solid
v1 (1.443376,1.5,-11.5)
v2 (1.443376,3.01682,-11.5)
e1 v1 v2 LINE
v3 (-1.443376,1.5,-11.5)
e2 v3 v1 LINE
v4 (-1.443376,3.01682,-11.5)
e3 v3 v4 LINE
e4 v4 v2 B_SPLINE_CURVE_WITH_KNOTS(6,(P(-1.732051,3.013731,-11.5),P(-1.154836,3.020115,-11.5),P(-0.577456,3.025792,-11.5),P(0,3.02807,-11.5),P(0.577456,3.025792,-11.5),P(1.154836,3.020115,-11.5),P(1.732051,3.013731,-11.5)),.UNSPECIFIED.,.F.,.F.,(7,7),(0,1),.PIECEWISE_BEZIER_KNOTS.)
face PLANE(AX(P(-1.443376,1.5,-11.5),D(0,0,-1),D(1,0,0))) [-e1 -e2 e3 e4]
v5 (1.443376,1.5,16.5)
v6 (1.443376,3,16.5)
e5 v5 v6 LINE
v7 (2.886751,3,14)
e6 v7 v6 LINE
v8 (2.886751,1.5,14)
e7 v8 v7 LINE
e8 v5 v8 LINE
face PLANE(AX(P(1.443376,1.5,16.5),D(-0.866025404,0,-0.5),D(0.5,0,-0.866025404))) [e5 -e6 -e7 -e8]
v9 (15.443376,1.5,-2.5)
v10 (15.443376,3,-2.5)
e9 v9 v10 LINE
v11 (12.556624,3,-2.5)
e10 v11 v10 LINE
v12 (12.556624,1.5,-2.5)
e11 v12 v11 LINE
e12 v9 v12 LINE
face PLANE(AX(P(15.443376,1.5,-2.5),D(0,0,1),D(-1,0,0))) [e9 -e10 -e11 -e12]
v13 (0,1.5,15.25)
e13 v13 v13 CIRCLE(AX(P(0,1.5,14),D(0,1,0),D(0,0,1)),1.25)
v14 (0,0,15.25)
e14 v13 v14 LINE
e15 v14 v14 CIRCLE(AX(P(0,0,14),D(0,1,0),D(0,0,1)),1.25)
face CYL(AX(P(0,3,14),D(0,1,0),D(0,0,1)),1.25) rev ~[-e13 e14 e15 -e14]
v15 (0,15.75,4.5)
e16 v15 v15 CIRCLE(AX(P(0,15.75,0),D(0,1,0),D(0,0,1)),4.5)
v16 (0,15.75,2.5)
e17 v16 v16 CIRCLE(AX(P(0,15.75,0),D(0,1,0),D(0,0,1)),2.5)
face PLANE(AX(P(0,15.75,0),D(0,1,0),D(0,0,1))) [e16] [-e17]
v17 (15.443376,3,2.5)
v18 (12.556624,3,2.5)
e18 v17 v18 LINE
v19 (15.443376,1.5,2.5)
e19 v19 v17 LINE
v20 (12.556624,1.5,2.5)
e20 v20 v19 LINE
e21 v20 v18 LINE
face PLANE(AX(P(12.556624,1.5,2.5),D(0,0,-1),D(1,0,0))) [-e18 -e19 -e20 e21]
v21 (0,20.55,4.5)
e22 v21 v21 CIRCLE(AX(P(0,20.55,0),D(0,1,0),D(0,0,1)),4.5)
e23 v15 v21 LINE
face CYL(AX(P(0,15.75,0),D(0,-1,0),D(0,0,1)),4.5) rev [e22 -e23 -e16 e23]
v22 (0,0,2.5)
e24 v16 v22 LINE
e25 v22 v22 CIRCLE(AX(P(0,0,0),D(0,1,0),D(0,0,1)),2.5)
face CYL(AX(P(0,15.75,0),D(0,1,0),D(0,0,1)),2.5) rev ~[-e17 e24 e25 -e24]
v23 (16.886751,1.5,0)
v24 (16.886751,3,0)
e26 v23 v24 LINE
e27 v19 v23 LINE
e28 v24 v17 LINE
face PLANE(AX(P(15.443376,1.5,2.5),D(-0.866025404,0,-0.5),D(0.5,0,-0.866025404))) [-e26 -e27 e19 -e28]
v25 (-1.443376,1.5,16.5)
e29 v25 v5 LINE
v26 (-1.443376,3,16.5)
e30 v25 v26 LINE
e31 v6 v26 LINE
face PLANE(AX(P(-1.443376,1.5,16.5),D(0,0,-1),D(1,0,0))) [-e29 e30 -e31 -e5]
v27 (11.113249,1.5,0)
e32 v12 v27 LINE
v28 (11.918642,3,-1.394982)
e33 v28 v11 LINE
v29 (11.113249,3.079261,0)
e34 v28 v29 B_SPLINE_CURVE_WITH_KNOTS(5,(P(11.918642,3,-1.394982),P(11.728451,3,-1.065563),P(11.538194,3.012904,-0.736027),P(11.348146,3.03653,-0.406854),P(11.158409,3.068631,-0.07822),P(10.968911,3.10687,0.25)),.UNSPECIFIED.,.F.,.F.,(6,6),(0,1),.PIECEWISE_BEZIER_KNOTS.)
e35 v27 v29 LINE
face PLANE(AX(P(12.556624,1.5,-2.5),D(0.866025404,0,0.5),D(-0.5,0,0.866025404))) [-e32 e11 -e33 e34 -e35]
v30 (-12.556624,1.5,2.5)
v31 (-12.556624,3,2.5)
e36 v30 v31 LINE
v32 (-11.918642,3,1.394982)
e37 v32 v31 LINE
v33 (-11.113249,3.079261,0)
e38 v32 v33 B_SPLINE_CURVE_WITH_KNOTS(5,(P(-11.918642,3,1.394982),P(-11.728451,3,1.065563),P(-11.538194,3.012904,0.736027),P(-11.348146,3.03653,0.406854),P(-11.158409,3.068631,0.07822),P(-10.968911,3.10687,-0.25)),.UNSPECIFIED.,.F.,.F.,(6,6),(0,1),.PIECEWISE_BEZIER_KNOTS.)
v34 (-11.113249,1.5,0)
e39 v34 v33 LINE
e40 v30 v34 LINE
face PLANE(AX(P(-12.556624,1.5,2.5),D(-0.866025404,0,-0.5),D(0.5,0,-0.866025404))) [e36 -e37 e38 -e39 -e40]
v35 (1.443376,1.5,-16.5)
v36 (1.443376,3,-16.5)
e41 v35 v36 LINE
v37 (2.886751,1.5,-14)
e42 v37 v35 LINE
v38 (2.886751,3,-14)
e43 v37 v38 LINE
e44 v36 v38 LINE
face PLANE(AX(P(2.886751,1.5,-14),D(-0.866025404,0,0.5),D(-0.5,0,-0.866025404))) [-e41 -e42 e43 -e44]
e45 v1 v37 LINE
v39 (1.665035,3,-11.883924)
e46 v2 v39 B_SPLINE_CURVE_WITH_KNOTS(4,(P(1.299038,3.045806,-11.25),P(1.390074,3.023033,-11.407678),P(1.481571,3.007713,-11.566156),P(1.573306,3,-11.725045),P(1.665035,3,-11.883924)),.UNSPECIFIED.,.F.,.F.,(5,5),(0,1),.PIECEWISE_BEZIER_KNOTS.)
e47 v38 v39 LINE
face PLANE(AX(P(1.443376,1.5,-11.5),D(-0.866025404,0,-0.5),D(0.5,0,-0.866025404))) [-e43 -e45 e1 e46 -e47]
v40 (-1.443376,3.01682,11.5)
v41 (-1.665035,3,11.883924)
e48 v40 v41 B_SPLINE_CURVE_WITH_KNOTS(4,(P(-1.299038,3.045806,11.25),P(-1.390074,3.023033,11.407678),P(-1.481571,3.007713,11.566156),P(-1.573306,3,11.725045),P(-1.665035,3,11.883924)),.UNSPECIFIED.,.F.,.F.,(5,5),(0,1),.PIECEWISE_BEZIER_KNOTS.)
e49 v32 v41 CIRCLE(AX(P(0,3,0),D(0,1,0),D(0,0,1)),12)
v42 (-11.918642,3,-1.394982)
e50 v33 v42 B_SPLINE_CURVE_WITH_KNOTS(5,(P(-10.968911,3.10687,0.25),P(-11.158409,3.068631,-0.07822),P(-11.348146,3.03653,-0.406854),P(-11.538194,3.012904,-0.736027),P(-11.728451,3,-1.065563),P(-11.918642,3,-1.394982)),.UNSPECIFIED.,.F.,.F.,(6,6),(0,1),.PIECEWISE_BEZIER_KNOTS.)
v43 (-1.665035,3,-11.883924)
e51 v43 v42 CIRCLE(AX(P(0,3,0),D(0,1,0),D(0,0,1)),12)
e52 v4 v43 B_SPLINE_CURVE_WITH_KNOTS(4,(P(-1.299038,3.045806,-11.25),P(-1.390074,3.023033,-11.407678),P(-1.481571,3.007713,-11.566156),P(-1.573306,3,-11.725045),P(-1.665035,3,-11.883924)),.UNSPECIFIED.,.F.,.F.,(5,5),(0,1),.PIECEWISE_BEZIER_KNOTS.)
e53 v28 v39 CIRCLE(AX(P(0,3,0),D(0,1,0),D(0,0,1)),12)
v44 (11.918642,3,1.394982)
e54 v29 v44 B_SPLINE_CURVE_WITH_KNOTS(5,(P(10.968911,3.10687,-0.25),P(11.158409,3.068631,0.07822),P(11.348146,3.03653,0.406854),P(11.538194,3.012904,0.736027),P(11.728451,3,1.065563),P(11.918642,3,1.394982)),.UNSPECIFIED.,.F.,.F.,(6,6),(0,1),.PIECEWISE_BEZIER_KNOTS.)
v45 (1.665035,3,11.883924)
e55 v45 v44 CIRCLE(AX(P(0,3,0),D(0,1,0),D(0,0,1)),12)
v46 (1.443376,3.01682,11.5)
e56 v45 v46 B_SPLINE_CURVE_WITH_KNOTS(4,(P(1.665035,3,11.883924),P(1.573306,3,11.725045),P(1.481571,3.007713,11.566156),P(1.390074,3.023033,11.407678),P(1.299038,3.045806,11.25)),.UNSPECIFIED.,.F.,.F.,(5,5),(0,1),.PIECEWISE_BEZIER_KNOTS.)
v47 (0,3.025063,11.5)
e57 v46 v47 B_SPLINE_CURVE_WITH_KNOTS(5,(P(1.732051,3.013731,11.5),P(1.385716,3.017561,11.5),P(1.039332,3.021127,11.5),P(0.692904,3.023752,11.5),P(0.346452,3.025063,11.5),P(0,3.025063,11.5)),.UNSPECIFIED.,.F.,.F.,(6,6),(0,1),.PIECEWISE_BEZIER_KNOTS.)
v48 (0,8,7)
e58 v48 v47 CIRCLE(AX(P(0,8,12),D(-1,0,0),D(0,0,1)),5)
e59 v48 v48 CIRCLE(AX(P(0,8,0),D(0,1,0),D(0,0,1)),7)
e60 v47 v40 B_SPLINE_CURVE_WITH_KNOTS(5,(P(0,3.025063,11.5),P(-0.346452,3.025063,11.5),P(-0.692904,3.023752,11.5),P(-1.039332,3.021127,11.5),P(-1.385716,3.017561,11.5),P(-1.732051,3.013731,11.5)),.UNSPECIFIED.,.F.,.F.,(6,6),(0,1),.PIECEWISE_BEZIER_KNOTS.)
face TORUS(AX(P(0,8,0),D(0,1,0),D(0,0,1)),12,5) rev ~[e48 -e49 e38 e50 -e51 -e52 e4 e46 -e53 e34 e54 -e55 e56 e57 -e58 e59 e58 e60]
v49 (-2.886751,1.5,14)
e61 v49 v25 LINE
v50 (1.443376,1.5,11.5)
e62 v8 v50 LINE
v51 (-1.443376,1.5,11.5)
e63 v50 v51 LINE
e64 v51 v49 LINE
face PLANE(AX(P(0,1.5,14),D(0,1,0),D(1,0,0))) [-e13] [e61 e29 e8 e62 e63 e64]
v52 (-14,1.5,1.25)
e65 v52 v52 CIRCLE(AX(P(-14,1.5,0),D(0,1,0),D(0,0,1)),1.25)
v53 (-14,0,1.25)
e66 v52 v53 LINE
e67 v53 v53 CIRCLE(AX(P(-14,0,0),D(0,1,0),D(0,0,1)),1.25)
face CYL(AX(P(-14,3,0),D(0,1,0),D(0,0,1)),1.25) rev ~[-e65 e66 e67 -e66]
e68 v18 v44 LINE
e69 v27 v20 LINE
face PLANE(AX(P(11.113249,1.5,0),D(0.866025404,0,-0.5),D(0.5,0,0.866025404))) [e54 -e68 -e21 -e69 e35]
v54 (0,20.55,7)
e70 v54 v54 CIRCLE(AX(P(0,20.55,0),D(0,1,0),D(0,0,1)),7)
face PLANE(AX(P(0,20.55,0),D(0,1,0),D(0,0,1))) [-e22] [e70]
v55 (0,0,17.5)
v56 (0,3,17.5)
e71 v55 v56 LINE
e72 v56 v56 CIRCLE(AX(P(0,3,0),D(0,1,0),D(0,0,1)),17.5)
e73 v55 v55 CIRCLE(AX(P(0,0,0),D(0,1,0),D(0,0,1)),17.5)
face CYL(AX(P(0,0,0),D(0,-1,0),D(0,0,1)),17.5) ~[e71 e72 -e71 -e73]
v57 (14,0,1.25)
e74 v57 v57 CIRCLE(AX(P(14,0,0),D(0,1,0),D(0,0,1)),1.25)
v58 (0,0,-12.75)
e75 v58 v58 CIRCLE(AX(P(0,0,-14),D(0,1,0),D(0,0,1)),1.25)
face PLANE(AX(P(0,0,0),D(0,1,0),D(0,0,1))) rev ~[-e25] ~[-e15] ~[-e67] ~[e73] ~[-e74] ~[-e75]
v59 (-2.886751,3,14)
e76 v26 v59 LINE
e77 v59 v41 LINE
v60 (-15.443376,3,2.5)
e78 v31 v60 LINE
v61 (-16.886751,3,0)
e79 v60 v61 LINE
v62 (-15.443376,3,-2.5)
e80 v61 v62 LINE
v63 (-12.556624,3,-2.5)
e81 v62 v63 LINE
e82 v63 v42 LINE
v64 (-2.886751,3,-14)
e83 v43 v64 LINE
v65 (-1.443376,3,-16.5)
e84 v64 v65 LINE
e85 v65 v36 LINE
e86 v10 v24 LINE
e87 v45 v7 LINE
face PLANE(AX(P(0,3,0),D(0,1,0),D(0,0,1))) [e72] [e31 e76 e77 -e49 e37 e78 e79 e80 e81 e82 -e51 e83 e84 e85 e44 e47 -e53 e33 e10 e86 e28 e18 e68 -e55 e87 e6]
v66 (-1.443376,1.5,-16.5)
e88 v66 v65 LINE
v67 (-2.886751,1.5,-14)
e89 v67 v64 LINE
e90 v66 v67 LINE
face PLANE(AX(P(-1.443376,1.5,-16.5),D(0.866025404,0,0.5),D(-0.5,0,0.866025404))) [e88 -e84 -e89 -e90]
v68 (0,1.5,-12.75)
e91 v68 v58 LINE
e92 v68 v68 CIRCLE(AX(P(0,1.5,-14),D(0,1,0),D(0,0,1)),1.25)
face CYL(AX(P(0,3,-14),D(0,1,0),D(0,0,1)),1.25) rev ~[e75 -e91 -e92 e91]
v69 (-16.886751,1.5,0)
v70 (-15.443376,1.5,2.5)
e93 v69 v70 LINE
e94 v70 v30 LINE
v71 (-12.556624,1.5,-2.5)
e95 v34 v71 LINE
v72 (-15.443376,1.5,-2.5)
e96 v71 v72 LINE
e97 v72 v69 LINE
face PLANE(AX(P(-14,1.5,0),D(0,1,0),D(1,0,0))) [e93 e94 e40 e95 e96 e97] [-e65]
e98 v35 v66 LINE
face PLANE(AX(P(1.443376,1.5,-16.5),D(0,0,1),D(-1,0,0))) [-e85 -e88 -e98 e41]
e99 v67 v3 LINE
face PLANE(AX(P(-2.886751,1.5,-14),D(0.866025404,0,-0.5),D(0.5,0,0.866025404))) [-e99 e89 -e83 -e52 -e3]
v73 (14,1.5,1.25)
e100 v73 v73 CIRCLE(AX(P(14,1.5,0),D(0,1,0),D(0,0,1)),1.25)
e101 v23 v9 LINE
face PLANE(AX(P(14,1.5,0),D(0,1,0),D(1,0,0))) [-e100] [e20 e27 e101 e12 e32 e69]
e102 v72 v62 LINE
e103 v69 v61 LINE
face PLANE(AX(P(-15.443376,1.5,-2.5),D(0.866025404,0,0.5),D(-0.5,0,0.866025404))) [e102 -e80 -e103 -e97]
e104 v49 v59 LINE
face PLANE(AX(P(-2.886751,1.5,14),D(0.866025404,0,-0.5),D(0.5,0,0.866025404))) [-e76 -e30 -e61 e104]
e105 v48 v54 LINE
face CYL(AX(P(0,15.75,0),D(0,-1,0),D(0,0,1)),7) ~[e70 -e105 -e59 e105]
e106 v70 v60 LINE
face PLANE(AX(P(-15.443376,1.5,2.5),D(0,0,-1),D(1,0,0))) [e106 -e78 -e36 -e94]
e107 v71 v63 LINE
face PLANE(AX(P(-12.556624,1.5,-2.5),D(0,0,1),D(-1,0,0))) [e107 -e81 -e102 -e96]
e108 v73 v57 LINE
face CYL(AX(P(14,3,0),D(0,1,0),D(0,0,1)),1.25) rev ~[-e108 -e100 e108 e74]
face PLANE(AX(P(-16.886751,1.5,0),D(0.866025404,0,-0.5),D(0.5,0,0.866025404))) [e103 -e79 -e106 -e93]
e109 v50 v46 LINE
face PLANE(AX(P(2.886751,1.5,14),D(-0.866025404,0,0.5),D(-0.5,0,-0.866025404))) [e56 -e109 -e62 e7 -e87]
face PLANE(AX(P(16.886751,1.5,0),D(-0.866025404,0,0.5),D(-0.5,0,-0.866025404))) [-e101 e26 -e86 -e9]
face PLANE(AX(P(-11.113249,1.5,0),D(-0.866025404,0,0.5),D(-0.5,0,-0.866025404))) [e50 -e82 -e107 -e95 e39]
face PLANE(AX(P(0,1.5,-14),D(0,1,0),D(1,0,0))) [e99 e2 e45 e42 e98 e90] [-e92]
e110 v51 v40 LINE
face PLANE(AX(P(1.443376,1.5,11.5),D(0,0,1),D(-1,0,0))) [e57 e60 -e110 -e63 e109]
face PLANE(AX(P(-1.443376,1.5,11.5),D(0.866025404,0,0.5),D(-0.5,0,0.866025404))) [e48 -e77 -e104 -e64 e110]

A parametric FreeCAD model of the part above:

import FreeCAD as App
import Part
import Sketcher
from FreeCAD import Vector
Q = App.Units.Quantity


def edges_at(feature, points):
    """Names of the edges that pass closest to the given points."""
    edges = feature.Shape.Edges
    near = lambda p: min(range(len(edges)), key=lambda i: edges[i].distToShape(Part.Vertex(*p))[0])
    return sorted({f"Edge{near(p) + 1}" for p in points})

doc = App.newDocument("Part")
body = doc.addObject("PartDesign::Body", "Body")

sketch1 = body.newObject("Sketcher::SketchObject", "Sketch")
sketch1.AttachmentSupport = (doc.getObject("XZ_Plane"), [""])
sketch1.MapMode = "FlatFace"
sketch1.addGeometry(Part.Circle(Vector(0, 0, 0), Vector(0, 0, 1), 18), False)
sketch1.addConstraint(Sketcher.Constraint("Coincident", 0, 3, -1, 1))
sketch1.addConstraint(Sketcher.Constraint("Diameter", 0, 35.0))
pad1 = body.newObject("PartDesign::Pad", "Pad")
pad1.Profile = sketch1
pad1.Length = 3
pad1.Reversed = True

sketch2 = body.newObject("Sketcher::SketchObject", "Sketch001")
sketch2.AttachmentSupport = (doc.getObject("XZ_Plane"), [""])
sketch2.MapMode = "FlatFace"
sketch2.AttachmentOffset = App.Placement(Vector(0, 0, -3), App.Rotation())
sketch2.addGeometry(Part.Circle(Vector(0, 0, 0), Vector(0, 0, 1), 7), False)
sketch2.addConstraint(Sketcher.Constraint("Coincident", 0, 3, -1, 1))
sketch2.addConstraint(Sketcher.Constraint("Diameter", 0, 14.0))
pad2 = body.newObject("PartDesign::Pad", "Pad001")
pad2.Profile = sketch2
pad2.Length = 12.75
pad2.Reversed = True

sketch3 = body.newObject("Sketcher::SketchObject", "Sketch002")
sketch3.AttachmentSupport = (doc.getObject("XZ_Plane"), [""])
sketch3.MapMode = "FlatFace"
sketch3.AttachmentOffset = App.Placement(Vector(0, 0, -15.75), App.Rotation())
sketch3.addGeometry(Part.Circle(Vector(0, 0, 0), Vector(0, 0, 1), 7), False)
sketch3.addGeometry(Part.Circle(Vector(0, 0, 0), Vector(0, 0, 1), 4.5), False)
sketch3.addConstraint(Sketcher.Constraint("Coincident", 0, 3, -1, 1))
sketch3.addConstraint(Sketcher.Constraint("Coincident", 1, 3, -1, 1))
sketch3.addConstraint(Sketcher.Constraint("Diameter", 0, 14.0))
sketch3.addConstraint(Sketcher.Constraint("Diameter", 1, 9.0))
pad3 = body.newObject("PartDesign::Pad", "Pad002")
pad3.Profile = sketch3
pad3.Length = 4.8
pad3.Reversed = True

sketch4 = body.newObject("Sketcher::SketchObject", "Sketch003")
sketch4.AttachmentSupport = (doc.getObject("XZ_Plane"), [""])
sketch4.MapMode = "FlatFace"
sketch4.AttachmentOffset = App.Placement(Vector(0, 0, -15.75), App.Rotation())
sketch4.addGeometry(Part.Circle(Vector(0, 0, 0), Vector(0, 0, 1), 2.5), False)
sketch4.addConstraint(Sketcher.Constraint("Coincident", 0, 3, -1, 1))
sketch4.addConstraint(Sketcher.Constraint("Diameter", 0, 5.0))
pocket1 = body.newObject("PartDesign::Pocket", "Pocket")
pocket1.Profile = sketch4
pocket1.Length = 19.8
pocket1.Reversed = True
doc.recompute()

fillet = body.newObject("PartDesign::Fillet", "Fillet")
fillet.Base = (pocket1, edges_at(pocket1, [(0, 3, -7)]))
fillet.Radius = 5

sketch5 = body.newObject("Sketcher::SketchObject", "Sketch004")
sketch5.AttachmentSupport = (doc.getObject("XZ_Plane"), [""])
sketch5.MapMode = "FlatFace"
sketch5.AttachmentOffset = App.Placement(Vector(0, 0, -3), App.Rotation())
sketch5.addGeometry(Part.Circle(Vector(0, -14, 0), Vector(0, 0, 1), 1.2), False)
sketch5.addGeometry(Part.Circle(Vector(14, 0, 0), Vector(0, 0, 1), 1.2), False)
sketch5.addGeometry(Part.Circle(Vector(0, 14, 0), Vector(0, 0, 1), 1.2), False)
sketch5.addGeometry(Part.Circle(Vector(-14, 0, 0), Vector(0, 0, 1), 1.2), False)
sketch5.addConstraint(Sketcher.Constraint("Equal", 0, 1))
sketch5.addConstraint(Sketcher.Constraint("Equal", 1, 2))
sketch5.addConstraint(Sketcher.Constraint("Equal", 2, 3))
sketch5.addConstraint(Sketcher.Constraint("Symmetric", 0, 3, 2, 3, -1, 1))
sketch5.addConstraint(Sketcher.Constraint("Symmetric", 1, 3, 3, 3, -1, 1))
sketch5.addConstraint(Sketcher.Constraint("PointOnObject", 0, 3, -2))
sketch5.addConstraint(Sketcher.Constraint("PointOnObject", 1, 3, -1))
sketch5.addConstraint(Sketcher.Constraint("Diameter", 0, 2.5))
sketch5.addConstraint(Sketcher.Constraint("DistanceY", 0, 3, -1, 1, 14.0))
sketch5.addConstraint(Sketcher.Constraint("DistanceX", -1, 1, 1, 3, 14.0))
pocket2 = body.newObject("PartDesign::Pocket", "Pocket001")
pocket2.Profile = sketch5
pocket2.Length = 3
pocket2.Reversed = True

sketch6 = body.newObject("Sketcher::SketchObject", "Sketch005")
sketch6.AttachmentSupport = (doc.getObject("XZ_Plane"), [""])
sketch6.MapMode = "FlatFace"
sketch6.AttachmentOffset = App.Placement(Vector(0, 0, -3), App.Rotation())
sketch6.addGeometry(Part.LineSegment(Vector(2.9, -14, 0), Vector(1.4, -16.5, 0)), False)
sketch6.addGeometry(Part.LineSegment(Vector(1.4, -16.5, 0), Vector(-1.4, -16.5, 0)), False)
sketch6.addGeometry(Part.LineSegment(Vector(-1.4, -16.5, 0), Vector(-2.9, -14, 0)), False)
sketch6.addGeometry(Part.LineSegment(Vector(-2.9, -14, 0), Vector(-1.4, -11.5, 0)), False)
sketch6.addGeometry(Part.LineSegment(Vector(-1.4, -11.5, 0), Vector(1.4, -11.5, 0)), False)
sketch6.addGeometry(Part.LineSegment(Vector(1.4, -11.5, 0), Vector(2.9, -14, 0)), False)
sketch6.addGeometry(Part.LineSegment(Vector(16.9, 0, 0), Vector(15.4, -2.5, 0)), False)
sketch6.addGeometry(Part.LineSegment(Vector(15.4, -2.5, 0), Vector(12.6, -2.5, 0)), False)
sketch6.addGeometry(Part.LineSegment(Vector(12.6, -2.5, 0), Vector(11.1, 0, 0)), False)
sketch6.addGeometry(Part.LineSegment(Vector(11.1, 0, 0), Vector(12.6, 2.5, 0)), False)
sketch6.addGeometry(Part.LineSegment(Vector(12.6, 2.5, 0), Vector(15.4, 2.5, 0)), False)
sketch6.addGeometry(Part.LineSegment(Vector(15.4, 2.5, 0), Vector(16.9, 0, 0)), False)
sketch6.addGeometry(Part.LineSegment(Vector(2.9, 14, 0), Vector(1.4, 11.5, 0)), False)
sketch6.addGeometry(Part.LineSegment(Vector(1.4, 11.5, 0), Vector(-1.4, 11.5, 0)), False)
sketch6.addGeometry(Part.LineSegment(Vector(-1.4, 11.5, 0), Vector(-2.9, 14, 0)), False)
sketch6.addGeometry(Part.LineSegment(Vector(-2.9, 14, 0), Vector(-1.4, 16.5, 0)), False)
sketch6.addGeometry(Part.LineSegment(Vector(-1.4, 16.5, 0), Vector(1.4, 16.5, 0)), False)
sketch6.addGeometry(Part.LineSegment(Vector(1.4, 16.5, 0), Vector(2.9, 14, 0)), False)
sketch6.addGeometry(Part.LineSegment(Vector(-11.1, 0, 0), Vector(-12.6, -2.5, 0)), False)
sketch6.addGeometry(Part.LineSegment(Vector(-12.6, -2.5, 0), Vector(-15.4, -2.5, 0)), False)
sketch6.addGeometry(Part.LineSegment(Vector(-15.4, -2.5, 0), Vector(-16.9, 0, 0)), False)
sketch6.addGeometry(Part.LineSegment(Vector(-16.9, 0, 0), Vector(-15.4, 2.5, 0)), False)
sketch6.addGeometry(Part.LineSegment(Vector(-15.4, 2.5, 0), Vector(-12.6, 2.5, 0)), False)
sketch6.addGeometry(Part.LineSegment(Vector(-12.6, 2.5, 0), Vector(-11.1, 0, 0)), False)
sketch6.addConstraint(Sketcher.Constraint("Coincident", 0, 2, 1, 1))
sketch6.addConstraint(Sketcher.Constraint("Coincident", 1, 2, 2, 1))
sketch6.addConstraint(Sketcher.Constraint("Coincident", 2, 2, 3, 1))
sketch6.addConstraint(Sketcher.Constraint("Coincident", 3, 2, 4, 1))
sketch6.addConstraint(Sketcher.Constraint("Coincident", 4, 2, 5, 1))
sketch6.addConstraint(Sketcher.Constraint("Coincident", 5, 2, 0, 1))
sketch6.addConstraint(Sketcher.Constraint("Coincident", 6, 2, 7, 1))
sketch6.addConstraint(Sketcher.Constraint("Coincident", 7, 2, 8, 1))
sketch6.addConstraint(Sketcher.Constraint("Coincident", 8, 2, 9, 1))
sketch6.addConstraint(Sketcher.Constraint("Coincident", 9, 2, 10, 1))
sketch6.addConstraint(Sketcher.Constraint("Coincident", 10, 2, 11, 1))
sketch6.addConstraint(Sketcher.Constraint("Coincident", 11, 2, 6, 1))
sketch6.addConstraint(Sketcher.Constraint("Coincident", 12, 2, 13, 1))
sketch6.addConstraint(Sketcher.Constraint("Coincident", 13, 2, 14, 1))
sketch6.addConstraint(Sketcher.Constraint("Coincident", 14, 2, 15, 1))
sketch6.addConstraint(Sketcher.Constraint("Coincident", 15, 2, 16, 1))
sketch6.addConstraint(Sketcher.Constraint("Coincident", 16, 2, 17, 1))
sketch6.addConstraint(Sketcher.Constraint("Coincident", 17, 2, 12, 1))
sketch6.addConstraint(Sketcher.Constraint("Coincident", 18, 2, 19, 1))
sketch6.addConstraint(Sketcher.Constraint("Coincident", 19, 2, 20, 1))
sketch6.addConstraint(Sketcher.Constraint("Coincident", 20, 2, 21, 1))
sketch6.addConstraint(Sketcher.Constraint("Coincident", 21, 2, 22, 1))
sketch6.addConstraint(Sketcher.Constraint("Coincident", 22, 2, 23, 1))
sketch6.addConstraint(Sketcher.Constraint("Coincident", 23, 2, 18, 1))
sketch6.addConstraint(Sketcher.Constraint("Horizontal", 1))
sketch6.addConstraint(Sketcher.Constraint("Horizontal", 4))
sketch6.addConstraint(Sketcher.Constraint("Horizontal", 7))
sketch6.addConstraint(Sketcher.Constraint("Horizontal", 10))
sketch6.addConstraint(Sketcher.Constraint("Horizontal", 13))
sketch6.addConstraint(Sketcher.Constraint("Horizontal", 16))
sketch6.addConstraint(Sketcher.Constraint("Horizontal", 19))
sketch6.addConstraint(Sketcher.Constraint("Horizontal", 22))
sketch6.addConstraint(Sketcher.Constraint("Symmetric", 3, 2, 12, 2, -1, 1))
sketch6.addConstraint(Sketcher.Constraint("Symmetric", 5, 2, 14, 2, -1, 1))
sketch6.addConstraint(Sketcher.Constraint("Symmetric", 0, 2, 15, 2, -1, 1))
sketch6.addConstraint(Sketcher.Constraint("Symmetric", 2, 2, 17, 2, -1, 1))
sketch6.addConstraint(Sketcher.Constraint("Symmetric", 9, 2, 18, 2, -1, 1))
sketch6.addConstraint(Sketcher.Constraint("Symmetric", 11, 2, 20, 2, -1, 1))
sketch6.addConstraint(Sketcher.Constraint("Symmetric", 6, 2, 21, 2, -1, 1))
sketch6.addConstraint(Sketcher.Constraint("Symmetric", 8, 2, 23, 2, -1, 1))
sketch6.addConstraint(Sketcher.Constraint("Symmetric", 2, 2, 5, 2, -2))
sketch6.addConstraint(Sketcher.Constraint("Symmetric", 7, 2, 18, 2, -2))
sketch6.addConstraint(Sketcher.Constraint("PointOnObject", 8, 2, -1))
sketch6.addConstraint(Sketcher.Constraint("PointOnObject", 11, 2, -1))
sketch6.addConstraint(Sketcher.Constraint("Parallel", 0, 3))
sketch6.addConstraint(Sketcher.Constraint("Parallel", 2, 5))
sketch6.addConstraint(Sketcher.Constraint("Parallel", 3, 6))
sketch6.addConstraint(Sketcher.Constraint("Parallel", 5, 8))
sketch6.addConstraint(Sketcher.Constraint("Parallel", 6, 9))
sketch6.addConstraint(Sketcher.Constraint("Parallel", 8, 11))
sketch6.addConstraint(Sketcher.Constraint("Parallel", 11, 14))
sketch6.addConstraint(Sketcher.Constraint("Parallel", 14, 17))
sketch6.addConstraint(Sketcher.Constraint("Parallel", 17, 20))
sketch6.addConstraint(Sketcher.Constraint("Parallel", 20, 23))
sketch6.addConstraint(Sketcher.Constraint("Vertical", 1, 2, 3, 2))
sketch6.addConstraint(Sketcher.Constraint("Equal", 4, 7))
sketch6.addConstraint(Sketcher.Constraint("Equal", 5, 6))
sketch6.addConstraint(Sketcher.Constraint("Angle", 0, Q("-120 deg")))
sketch6.addConstraint(Sketcher.Constraint("DistanceY", 2, 2, -1, 1, 14.0))
sketch6.addConstraint(Sketcher.Constraint("DistanceY", 1, 2, 3, 2, 5.0))
sketch6.addConstraint(Sketcher.Constraint("DistanceX", 4, 2, 6, 2, 14.0))
sketch6.addConstraint(Sketcher.Constraint("DistanceX", 1, 2, 1, 1, 2.886751))
pocket3 = body.newObject("PartDesign::Pocket", "Pocket002")
pocket3.Profile = sketch6
pocket3.Type = "TwoLengths"
pocket3.Length = 1.5
pocket3.Length2 = 1.5

doc.recompute()
